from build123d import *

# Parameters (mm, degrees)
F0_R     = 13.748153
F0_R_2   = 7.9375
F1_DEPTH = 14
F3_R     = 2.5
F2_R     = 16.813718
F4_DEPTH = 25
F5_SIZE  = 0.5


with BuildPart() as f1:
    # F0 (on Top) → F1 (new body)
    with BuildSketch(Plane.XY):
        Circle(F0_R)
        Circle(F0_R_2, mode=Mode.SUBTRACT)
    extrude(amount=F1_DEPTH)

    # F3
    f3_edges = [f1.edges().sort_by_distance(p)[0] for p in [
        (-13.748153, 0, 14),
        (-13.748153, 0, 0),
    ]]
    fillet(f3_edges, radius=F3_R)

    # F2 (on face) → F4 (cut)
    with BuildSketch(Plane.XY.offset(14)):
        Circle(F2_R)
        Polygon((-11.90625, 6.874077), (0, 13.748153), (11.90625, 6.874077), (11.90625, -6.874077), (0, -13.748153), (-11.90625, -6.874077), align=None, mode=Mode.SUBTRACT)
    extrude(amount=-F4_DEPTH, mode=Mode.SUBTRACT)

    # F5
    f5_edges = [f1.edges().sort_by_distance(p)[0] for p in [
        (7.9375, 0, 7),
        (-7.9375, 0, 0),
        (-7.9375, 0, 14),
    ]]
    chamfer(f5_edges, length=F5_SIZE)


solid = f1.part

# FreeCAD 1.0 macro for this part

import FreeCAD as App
import Part
import Sketcher
from FreeCAD import Vector
Q = App.Units.Quantity


def edges_at(feature, points):
    """Names of the edges that pass closest to the given points."""
    edges = feature.Shape.Edges
    near = lambda p: min(range(len(edges)), key=lambda i: edges[i].distToShape(Part.Vertex(*p))[0])
    return sorted({f"Edge{near(p) + 1}" for p in points})


def add_polygon(sketch, points):
    """Adds a closed chain of lines whose ends are joined by coincident constraints."""
    first, n = sketch.GeometryCount, len(points)
    for a, b in zip(points, points[1:] + points[:1]):
        sketch.addGeometry(Part.LineSegment(App.Vector(*a, 0), App.Vector(*b, 0)), False)
    for i in range(n):
        sketch.addConstraint(Sketcher.Constraint("Coincident", first + i, 2, first + (i + 1) % n, 1))

doc = App.newDocument("Part")
params = doc.addObject("Spreadsheet::Sheet", "Params")
for row, (alias, value) in enumerate([
    ("pad1_length", "14 mm"),
    ("fillet_radius", "2.5 mm"),
    ("pocket1_length", "25 mm"),
    ("chamfer_size", "0.5 mm"),
], start=1):
    params.set(f"A{row}", alias)
    params.set(f"B{row}", "=" + value)
    params.setAlias(f"B{row}", alias)

body = doc.addObject("PartDesign::Body", "Body")

sketch1 = body.newObject("Sketcher::SketchObject", "Sketch")
sketch1.AttachmentSupport = (doc.getObject("XY_Plane"), [""])
sketch1.MapMode = "FlatFace"
sketch1.addGeometry([
    Part.Circle(Vector(0, 0, 0), Vector(0, 0, 1), 13.748153),
    Part.Circle(Vector(0, 0, 0), Vector(0, 0, 1), 7.9375),
], False)
sketch1.addConstraint([
    Sketcher.Constraint("Coincident", 0, 3, -1, 1),
    Sketcher.Constraint("Coincident", 1, 3, -1, 1),
    Sketcher.Constraint("Diameter", 1, 15.875),
    Sketcher.Constraint("Diameter", 0, 27.496306),
])
pad1 = body.newObject("PartDesign::Pad", "Pad")
pad1.Profile = sketch1
pad1.setExpression("Length", "Params.pad1_length")
doc.recompute()

fillet = body.newObject("PartDesign::Fillet", "Fillet")
fillet.Base = (pad1, edges_at(pad1, [(-13.748, 0, 14), (-13.748, 0, 0)]))
fillet.setExpression("Radius", "Params.fillet_radius")

sketch2 = body.newObject("Sketcher::SketchObject", "Sketch001")
sketch2.AttachmentSupport = (doc.getObject("XY_Plane"), [""])
sketch2.MapMode = "FlatFace"
sketch2.AttachmentOffset = App.Placement(Vector(0, 0, 14), App.Rotation())
sketch2.addGeometry(Part.Circle(Vector(0, 0, 0), Vector(0, 0, 1), 16.813718), False)
add_polygon(sketch2, [(-11.90625, -6.874077), (-11.90625, 6.874077), (0, 13.748153), (11.90625, 6.874077), (11.90625, -6.874077), (0, -13.748153)])
sketch2.addConstraint([
    Sketcher.Constraint("Vertical", 1),
    Sketcher.Constraint("Vertical", 4),
    Sketcher.Constraint("Coincident", 0, 3, -1, 1),
    Sketcher.Constraint("Symmetric", 1, 2, 4, 2, -1, 1),
    Sketcher.Constraint("Symmetric", 2, 2, 5, 2, -1, 1),
    Sketcher.Constraint("PointOnObject", 2, 2, -2),
    Sketcher.Constraint("Parallel", 3, 6),
    Sketcher.Constraint("Horizontal", 1, 2, 3, 2),
    Sketcher.Constraint("Angle", 2, Q("29.999998 deg")),
    Sketcher.Constraint("Diameter", 0, 33.627436),
    Sketcher.Constraint("DistanceX", 1, 2, 3, 2, 23.8125),
    Sketcher.Constraint("DistanceY", 1, 1, 1, 2, 13.748154),
])
pocket1 = body.newObject("PartDesign::Pocket", "Pocket")
pocket1.Profile = sketch2
pocket1.setExpression("Length", "Params.pocket1_length")
doc.recompute()

chamfer = body.newObject("PartDesign::Chamfer", "Chamfer")
chamfer.Base = (pocket1, edges_at(pocket1, [(7.938, 0, 7), (-7.938, 0, 0), (-7.938, 0, 14)]))
chamfer.setExpression("Size", "Params.chamfer_size")

doc.recompute()
